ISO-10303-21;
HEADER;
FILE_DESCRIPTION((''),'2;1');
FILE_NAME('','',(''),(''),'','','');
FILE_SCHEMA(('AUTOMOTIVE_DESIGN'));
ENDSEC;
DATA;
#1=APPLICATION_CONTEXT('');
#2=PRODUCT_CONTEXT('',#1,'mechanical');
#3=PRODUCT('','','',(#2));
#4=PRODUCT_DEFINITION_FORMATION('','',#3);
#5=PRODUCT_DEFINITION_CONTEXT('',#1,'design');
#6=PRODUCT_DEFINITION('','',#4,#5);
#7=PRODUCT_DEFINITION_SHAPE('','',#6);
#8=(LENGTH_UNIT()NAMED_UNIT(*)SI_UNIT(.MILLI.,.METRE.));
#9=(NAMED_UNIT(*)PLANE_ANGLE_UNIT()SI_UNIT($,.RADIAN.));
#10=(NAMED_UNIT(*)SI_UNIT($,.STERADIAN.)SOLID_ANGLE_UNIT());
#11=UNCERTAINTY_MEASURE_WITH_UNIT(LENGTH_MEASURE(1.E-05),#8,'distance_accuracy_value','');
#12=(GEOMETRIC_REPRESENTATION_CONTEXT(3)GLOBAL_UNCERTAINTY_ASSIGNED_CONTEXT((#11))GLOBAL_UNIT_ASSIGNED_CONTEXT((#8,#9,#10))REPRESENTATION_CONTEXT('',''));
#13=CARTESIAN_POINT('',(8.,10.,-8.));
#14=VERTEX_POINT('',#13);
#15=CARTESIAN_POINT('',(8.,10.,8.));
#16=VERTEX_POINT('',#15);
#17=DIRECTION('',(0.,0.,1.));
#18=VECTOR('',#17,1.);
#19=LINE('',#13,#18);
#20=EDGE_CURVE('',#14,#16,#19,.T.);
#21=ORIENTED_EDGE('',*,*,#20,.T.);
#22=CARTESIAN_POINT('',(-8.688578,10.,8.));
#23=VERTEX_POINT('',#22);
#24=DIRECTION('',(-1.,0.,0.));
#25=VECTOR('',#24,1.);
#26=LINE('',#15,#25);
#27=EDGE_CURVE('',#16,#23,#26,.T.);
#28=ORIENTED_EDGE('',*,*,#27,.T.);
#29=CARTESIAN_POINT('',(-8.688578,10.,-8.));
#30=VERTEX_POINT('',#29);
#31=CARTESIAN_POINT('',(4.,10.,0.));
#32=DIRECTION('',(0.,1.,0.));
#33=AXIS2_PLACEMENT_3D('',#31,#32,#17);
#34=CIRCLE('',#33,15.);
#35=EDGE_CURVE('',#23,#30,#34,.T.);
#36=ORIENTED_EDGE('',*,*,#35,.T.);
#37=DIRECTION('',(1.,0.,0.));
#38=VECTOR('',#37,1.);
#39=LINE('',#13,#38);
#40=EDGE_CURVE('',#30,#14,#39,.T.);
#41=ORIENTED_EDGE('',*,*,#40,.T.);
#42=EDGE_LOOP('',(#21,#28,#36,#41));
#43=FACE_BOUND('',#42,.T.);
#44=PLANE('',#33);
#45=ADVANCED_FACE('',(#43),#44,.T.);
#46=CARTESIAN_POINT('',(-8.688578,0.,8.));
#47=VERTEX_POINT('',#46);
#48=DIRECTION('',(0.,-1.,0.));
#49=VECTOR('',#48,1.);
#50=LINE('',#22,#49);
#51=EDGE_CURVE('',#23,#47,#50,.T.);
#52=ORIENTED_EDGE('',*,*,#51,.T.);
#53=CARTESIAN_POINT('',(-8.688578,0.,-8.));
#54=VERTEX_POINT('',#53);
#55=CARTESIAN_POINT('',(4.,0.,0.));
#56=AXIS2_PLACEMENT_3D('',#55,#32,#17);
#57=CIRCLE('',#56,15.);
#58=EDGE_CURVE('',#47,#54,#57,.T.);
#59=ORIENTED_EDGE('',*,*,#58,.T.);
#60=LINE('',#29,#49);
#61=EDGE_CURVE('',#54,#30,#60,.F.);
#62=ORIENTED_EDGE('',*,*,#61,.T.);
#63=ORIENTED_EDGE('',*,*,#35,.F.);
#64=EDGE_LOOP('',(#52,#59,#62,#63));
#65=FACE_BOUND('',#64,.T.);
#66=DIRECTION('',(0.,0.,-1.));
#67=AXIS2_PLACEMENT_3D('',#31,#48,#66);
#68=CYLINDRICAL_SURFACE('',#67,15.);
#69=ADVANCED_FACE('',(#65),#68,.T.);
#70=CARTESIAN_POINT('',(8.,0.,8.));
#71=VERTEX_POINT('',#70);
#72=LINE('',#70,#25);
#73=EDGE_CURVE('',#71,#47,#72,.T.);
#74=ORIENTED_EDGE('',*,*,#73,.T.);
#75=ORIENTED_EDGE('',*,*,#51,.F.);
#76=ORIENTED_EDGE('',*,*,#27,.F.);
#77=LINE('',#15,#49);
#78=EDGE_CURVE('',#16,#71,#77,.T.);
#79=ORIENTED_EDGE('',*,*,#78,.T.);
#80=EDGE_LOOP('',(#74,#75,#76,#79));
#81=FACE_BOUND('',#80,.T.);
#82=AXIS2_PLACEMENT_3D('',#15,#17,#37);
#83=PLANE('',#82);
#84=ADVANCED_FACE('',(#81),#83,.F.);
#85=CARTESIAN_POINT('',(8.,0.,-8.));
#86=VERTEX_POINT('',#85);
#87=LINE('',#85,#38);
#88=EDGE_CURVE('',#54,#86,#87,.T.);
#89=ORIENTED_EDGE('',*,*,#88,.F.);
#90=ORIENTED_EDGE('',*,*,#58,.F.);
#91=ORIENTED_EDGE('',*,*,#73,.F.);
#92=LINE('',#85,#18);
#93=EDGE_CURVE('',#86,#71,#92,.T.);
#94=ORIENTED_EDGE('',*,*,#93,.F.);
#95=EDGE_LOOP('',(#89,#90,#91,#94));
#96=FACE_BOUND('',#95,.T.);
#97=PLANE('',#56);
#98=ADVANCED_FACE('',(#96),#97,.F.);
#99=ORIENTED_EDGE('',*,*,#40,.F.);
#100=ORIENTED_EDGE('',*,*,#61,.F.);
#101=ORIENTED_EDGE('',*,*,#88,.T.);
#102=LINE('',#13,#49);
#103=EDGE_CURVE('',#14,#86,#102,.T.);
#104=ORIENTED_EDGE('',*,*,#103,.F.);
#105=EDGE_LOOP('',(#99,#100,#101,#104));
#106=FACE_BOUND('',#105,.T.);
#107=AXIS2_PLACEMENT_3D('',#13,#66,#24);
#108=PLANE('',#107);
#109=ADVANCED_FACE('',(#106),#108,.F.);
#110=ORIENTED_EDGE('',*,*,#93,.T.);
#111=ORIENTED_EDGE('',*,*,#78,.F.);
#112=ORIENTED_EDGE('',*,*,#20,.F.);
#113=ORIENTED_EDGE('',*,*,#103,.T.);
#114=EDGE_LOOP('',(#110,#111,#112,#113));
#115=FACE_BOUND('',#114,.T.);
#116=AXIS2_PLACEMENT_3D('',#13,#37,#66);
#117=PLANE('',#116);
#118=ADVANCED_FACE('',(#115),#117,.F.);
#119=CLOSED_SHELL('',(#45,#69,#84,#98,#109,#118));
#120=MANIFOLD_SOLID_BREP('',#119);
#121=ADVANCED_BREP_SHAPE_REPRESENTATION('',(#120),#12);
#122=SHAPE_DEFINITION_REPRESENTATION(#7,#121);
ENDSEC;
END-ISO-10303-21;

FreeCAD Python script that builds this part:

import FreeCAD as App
import Part
import Sketcher

V = App.Vector
Q = App.Units.Quantity

doc = App.newDocument("Part")
params = doc.addObject("Spreadsheet::Sheet", "Params")
for row, (alias, value) in enumerate([
    ("sketch1_diameter", "30 mm"),
    ("sketch1_diameter2", "15 mm"),
    ("pad1_length", "10 mm"),
    ("sketch2_width", "25 mm"),
    ("sketch2_height", "16 mm"),
], start=1):
    params.set(f"A{row}", alias)
    params.set(f"B{row}", "=" + value)
    params.setAlias(f"B{row}", alias)

body = doc.addObject("PartDesign::Body", "Body")

sketch1 = body.newObject("Sketcher::SketchObject", "Sketch")
sketch1.AttachmentSupport = (doc.getObject("XZ_Plane"), [""])
sketch1.MapMode = "FlatFace"
sketch1.addGeometry([
    Part.Circle(V(4, 0, 0), V(0, 0, 1), 15),
    Part.Circle(V(0, 0, 0), V(0, 0, 1), 8),
], False)
sketch1.addConstraint([
    Sketcher.Constraint("Coincident", 1, 3, -1, 1),
    Sketcher.Constraint("PointOnObject", 0, 3, -1),
    Sketcher.Constraint("Diameter", 0, Q("30 mm")),
    Sketcher.Constraint("Diameter", 1, Q("15 mm")),
    Sketcher.Constraint("DistanceX", -1, 1, 0, 3, Q("4 mm")),
])
sketch1.setExpression("Constraints[2]", "Params.sketch1_diameter")
sketch1.setExpression("Constraints[3]", "Params.sketch1_diameter2")
pad1 = body.newObject("PartDesign::Pad", "Pad")
pad1.Profile = sketch1
pad1.setExpression("Length", "Params.pad1_length")
pad1.Reversed = True

sketch2 = body.newObject("Sketcher::SketchObject", "Sketch001")
sketch2.AttachmentSupport = (doc.getObject("XZ_Plane"), [""])
sketch2.MapMode = "FlatFace"
sketch2.addGeometry([
    Part.LineSegment(V(-17, 8, 0), V(-17, -8, 0)),
    Part.LineSegment(V(-17, -8, 0), V(8, -8, 0)),
    Part.LineSegment(V(8, -8, 0), V(8, 8, 0)),
    Part.LineSegment(V(8, 8, 0), V(-17, 8, 0)),
], False)
sketch2.addConstraint([
    Sketcher.Constraint("Coincident", 0, 2, 1, 1),
    Sketcher.Constraint("Coincident", 1, 2, 2, 1),
    Sketcher.Constraint("Coincident", 2, 2, 3, 1),
    Sketcher.Constraint("Coincident", 3, 2, 0, 1),
    Sketcher.Constraint("Vertical", 0),
    Sketcher.Constraint("Horizontal", 1),
    Sketcher.Constraint("Vertical", 2),
    Sketcher.Constraint("Horizontal", 3),
    Sketcher.Constraint("DistanceX", 1, 1, 1, 2, Q("25 mm")),
    Sketcher.Constraint("DistanceY", 0, 2, 0, 1, Q("16 mm")),
    Sketcher.Constraint("DistanceX", 0, 2, -1, 1, Q("17 mm")),
    Sketcher.Constraint("DistanceY", 0, 2, -1, 1, Q("8 mm")),
])
sketch2.setExpression("Constraints[8]", "Params.sketch2_width")
sketch2.setExpression("Constraints[9]", "Params.sketch2_height")
pocket1 = body.newObject("PartDesign::Pocket", "Pocket")
pocket1.Profile = sketch2
pocket1.Type = "ThroughAll"

doc.recompute()
